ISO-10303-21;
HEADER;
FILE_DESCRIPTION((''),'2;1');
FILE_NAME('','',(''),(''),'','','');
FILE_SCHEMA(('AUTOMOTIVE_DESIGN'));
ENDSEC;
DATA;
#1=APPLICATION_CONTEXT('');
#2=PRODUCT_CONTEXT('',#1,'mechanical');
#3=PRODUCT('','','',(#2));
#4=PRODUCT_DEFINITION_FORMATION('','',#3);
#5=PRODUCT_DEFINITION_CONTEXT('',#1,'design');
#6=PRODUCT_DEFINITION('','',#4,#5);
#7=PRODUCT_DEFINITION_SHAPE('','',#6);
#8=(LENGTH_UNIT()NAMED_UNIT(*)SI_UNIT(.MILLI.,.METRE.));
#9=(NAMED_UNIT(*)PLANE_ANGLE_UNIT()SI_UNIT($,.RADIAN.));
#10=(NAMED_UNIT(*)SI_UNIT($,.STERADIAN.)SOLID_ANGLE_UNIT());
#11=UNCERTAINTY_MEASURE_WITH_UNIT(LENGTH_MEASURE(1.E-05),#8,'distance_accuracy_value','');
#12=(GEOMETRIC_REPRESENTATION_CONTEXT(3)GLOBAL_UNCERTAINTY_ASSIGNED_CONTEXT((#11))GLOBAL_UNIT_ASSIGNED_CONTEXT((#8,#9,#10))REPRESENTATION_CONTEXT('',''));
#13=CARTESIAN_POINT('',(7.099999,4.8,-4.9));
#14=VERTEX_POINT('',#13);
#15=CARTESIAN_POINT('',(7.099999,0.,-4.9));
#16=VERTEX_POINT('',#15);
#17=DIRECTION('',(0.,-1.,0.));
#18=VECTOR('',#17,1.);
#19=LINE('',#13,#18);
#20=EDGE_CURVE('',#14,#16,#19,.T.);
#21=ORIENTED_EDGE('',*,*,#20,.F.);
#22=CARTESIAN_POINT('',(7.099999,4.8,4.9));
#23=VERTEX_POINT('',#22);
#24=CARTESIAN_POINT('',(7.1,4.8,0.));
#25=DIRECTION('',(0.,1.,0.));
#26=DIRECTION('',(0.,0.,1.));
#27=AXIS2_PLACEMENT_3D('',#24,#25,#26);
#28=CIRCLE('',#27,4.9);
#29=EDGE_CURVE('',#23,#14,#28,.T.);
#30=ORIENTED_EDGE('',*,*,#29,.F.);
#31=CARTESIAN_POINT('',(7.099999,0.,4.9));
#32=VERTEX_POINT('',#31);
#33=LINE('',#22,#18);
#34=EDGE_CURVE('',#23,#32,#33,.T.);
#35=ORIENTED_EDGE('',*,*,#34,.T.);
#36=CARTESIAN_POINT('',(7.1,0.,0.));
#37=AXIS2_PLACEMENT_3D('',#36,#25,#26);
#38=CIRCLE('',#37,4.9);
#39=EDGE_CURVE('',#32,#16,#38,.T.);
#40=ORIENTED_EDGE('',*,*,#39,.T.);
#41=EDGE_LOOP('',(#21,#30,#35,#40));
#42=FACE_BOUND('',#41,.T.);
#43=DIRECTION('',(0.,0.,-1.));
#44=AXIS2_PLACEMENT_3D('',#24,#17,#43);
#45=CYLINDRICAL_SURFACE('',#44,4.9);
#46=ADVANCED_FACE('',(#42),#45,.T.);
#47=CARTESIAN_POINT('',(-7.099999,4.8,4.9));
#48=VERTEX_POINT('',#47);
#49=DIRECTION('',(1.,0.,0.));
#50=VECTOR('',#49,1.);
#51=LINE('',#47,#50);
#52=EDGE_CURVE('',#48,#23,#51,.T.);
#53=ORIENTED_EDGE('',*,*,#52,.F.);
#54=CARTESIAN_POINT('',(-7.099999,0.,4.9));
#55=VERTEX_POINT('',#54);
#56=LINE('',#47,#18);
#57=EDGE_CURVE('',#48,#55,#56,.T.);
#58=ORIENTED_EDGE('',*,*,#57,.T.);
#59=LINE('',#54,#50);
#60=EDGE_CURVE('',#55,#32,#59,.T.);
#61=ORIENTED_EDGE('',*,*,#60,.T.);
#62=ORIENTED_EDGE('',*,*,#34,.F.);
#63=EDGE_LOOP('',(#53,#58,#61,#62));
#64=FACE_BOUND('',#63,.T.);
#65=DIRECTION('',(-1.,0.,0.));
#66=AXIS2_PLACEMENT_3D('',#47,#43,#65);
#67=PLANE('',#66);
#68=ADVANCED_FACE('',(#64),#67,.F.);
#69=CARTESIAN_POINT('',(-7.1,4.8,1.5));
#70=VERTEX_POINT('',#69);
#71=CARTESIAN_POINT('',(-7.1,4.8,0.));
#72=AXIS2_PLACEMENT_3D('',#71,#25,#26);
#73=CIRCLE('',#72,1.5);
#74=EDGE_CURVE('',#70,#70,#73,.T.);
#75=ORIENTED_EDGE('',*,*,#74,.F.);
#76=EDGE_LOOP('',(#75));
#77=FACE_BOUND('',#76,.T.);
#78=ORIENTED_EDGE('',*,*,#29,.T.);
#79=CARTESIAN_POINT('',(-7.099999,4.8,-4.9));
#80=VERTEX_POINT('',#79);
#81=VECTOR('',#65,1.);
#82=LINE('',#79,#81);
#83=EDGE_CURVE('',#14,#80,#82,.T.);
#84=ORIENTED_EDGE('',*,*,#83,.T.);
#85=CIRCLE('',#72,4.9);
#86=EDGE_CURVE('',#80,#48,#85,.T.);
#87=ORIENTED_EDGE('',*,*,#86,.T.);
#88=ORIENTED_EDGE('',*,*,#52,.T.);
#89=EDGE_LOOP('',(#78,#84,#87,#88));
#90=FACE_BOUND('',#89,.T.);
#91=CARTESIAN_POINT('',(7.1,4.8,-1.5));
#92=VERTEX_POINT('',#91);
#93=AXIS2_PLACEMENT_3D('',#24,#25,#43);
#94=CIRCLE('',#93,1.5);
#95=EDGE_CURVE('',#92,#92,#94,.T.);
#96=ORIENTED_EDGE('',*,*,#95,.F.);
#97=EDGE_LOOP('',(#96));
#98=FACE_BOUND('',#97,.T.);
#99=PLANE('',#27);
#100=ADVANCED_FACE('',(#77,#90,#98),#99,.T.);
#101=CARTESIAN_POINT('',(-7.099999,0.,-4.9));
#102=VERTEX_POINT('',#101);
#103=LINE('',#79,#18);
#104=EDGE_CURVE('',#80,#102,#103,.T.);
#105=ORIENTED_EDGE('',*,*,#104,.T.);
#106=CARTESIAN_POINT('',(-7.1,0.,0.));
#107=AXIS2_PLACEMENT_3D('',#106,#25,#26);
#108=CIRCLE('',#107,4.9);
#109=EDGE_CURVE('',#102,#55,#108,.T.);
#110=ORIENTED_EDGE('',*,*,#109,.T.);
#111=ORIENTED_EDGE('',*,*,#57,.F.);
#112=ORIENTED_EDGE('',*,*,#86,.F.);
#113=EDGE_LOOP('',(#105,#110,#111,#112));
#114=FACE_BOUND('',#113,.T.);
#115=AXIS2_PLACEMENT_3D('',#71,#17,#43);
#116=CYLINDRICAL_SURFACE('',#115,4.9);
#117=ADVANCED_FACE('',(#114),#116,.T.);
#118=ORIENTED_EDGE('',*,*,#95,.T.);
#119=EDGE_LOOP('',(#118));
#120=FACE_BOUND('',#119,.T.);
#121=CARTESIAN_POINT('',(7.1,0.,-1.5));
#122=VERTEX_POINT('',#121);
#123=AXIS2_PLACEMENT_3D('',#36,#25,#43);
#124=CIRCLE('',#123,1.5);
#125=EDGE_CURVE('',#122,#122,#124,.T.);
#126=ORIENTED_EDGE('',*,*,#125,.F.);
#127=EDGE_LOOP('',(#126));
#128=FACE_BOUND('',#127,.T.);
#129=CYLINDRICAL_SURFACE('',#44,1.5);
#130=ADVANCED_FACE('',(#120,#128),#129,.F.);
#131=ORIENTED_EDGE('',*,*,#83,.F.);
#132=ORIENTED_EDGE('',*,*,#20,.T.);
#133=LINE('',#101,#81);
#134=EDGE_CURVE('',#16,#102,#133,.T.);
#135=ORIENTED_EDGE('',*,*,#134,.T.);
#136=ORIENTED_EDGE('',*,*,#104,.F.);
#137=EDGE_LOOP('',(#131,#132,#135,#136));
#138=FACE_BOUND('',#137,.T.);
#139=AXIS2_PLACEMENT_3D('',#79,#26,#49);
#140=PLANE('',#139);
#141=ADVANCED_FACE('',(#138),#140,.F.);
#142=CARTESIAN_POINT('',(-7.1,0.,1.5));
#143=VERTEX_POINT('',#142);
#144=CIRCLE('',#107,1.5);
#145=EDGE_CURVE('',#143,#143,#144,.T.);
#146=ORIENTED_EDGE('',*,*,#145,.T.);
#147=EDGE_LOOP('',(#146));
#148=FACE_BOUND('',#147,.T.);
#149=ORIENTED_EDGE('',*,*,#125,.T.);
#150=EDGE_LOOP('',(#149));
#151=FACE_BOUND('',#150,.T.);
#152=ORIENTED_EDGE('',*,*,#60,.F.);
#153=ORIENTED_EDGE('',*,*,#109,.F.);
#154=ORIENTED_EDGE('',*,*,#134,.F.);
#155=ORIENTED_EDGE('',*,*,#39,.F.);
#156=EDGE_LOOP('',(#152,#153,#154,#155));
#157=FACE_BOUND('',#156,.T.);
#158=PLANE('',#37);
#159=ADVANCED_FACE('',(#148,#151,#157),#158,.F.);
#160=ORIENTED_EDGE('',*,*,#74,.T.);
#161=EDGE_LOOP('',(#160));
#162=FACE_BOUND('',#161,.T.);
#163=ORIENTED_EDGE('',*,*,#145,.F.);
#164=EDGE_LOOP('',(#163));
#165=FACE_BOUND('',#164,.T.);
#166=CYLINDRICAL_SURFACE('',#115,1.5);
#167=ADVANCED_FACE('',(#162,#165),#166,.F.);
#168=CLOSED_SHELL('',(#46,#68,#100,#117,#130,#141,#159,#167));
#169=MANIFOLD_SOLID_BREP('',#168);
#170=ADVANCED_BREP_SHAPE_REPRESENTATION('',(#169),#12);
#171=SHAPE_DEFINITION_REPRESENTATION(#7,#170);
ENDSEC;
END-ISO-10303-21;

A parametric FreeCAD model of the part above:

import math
import FreeCAD as App
import Part
import Sketcher
from FreeCAD import Vector

doc = App.newDocument("Part")
body = doc.addObject("PartDesign::Body", "Body")

sketch1 = doc.addObject("Sketcher::SketchObject", "Sketch")
body.addObject(sketch1)
sketch1.AttachmentSupport = (doc.XZ_Plane, [""])
sketch1.MapMode = "FlatFace"
sketch1.addGeometry([
    Part.LineSegment(Vector(7.099999, -4.9, 0), Vector(-7.099999, -4.9, 0)),
    Part.ArcOfCircle(Part.Circle(Vector(-7.1, 0, 0), Vector(0, 0, 1), 4.9), math.radians(89.999993), math.radians(270.000007)),
    Part.LineSegment(Vector(-7.099999, 4.9, 0), Vector(7.099999, 4.9, 0)),
    Part.ArcOfCircle(Part.Circle(Vector(7.1, 0, 0), Vector(0, 0, 1), 4.9), math.radians(-90.000007), math.radians(90.000007)),
    Part.Circle(Vector(7.1, 0, 0), Vector(0, 0, 1), 1.5),
    Part.Circle(Vector(-7.1, 0, 0), Vector(0, 0, 1), 1.5),
], False)
sketch1.addConstraint([
    Sketcher.Constraint("Tangent", 0, 2, 1, 2),
    Sketcher.Constraint("Tangent", 1, 1, 2, 1),
    Sketcher.Constraint("Tangent", 2, 2, 3, 2),
    Sketcher.Constraint("Tangent", 3, 1, 0, 1),
    Sketcher.Constraint("Horizontal", 0),
    Sketcher.Constraint("Horizontal", 2),
    Sketcher.Constraint("Coincident", 4, 3, 3, 3),
    Sketcher.Constraint("Coincident", 5, 3, 1, 3),
    Sketcher.Constraint("Equal", 4, 5),
    Sketcher.Constraint("Symmetric", 1, 3, 3, 3, -1, 1),
    Sketcher.Constraint("Diameter", 4, 3.0),
    Sketcher.Constraint("Radius", 1, 4.9),
    Sketcher.Constraint("DistanceX", 0, 2, 0, 1, 14.199999),
])
pad1 = doc.addObject("PartDesign::Pad", "Pad")
body.addObject(pad1)
pad1.Profile = sketch1
pad1.Length = 4.8
pad1.Reversed = True

doc.recompute()
